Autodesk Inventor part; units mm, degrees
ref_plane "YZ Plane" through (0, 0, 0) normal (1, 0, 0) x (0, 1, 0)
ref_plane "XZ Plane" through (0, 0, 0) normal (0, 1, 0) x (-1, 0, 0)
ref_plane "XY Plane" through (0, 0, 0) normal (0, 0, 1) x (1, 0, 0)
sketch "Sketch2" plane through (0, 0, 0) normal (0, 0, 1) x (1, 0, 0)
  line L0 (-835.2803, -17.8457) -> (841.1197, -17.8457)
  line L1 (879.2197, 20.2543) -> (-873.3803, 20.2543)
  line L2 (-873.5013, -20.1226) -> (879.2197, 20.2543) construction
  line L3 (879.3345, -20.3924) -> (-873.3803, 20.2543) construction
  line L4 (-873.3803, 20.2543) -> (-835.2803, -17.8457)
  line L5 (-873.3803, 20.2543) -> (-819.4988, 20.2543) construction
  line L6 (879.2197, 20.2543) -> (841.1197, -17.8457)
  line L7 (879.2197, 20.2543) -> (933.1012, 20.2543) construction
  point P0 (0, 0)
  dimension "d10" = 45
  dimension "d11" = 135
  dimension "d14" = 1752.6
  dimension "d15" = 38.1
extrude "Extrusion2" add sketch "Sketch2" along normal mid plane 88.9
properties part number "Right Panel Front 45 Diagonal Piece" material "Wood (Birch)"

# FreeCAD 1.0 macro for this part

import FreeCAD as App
import Part
import Sketcher

V = App.Vector
Q = App.Units.Quantity

doc = App.newDocument("Part")
body = doc.addObject("PartDesign::Body", "Body")

# Sketch on XY plane
sketch1 = doc.addObject("Sketcher::SketchObject", "Sketch")
body.addObject(sketch1)
sketch1.AttachmentSupport = (doc.XY_Plane, [""])
sketch1.MapMode = "FlatFace"
sketch1.addGeometry([
    Part.LineSegment(V(-873, 20, 0), V(-835, -18, 0)),
    Part.LineSegment(V(-835, -18, 0), V(841, -18, 0)),
    Part.LineSegment(V(841, -18, 0), V(879, 20, 0)),
    Part.LineSegment(V(879, 20, 0), V(-873, 20, 0)),
], False)
sketch1.addConstraint([
    Sketcher.Constraint("Coincident", 0, 2, 1, 1),
    Sketcher.Constraint("Coincident", 1, 2, 2, 1),
    Sketcher.Constraint("Coincident", 2, 2, 3, 1),
    Sketcher.Constraint("Coincident", 3, 2, 0, 1),
    Sketcher.Constraint("Horizontal", 1),
    Sketcher.Constraint("Horizontal", 3),
    Sketcher.Constraint("Perpendicular", 0, 2),
    Sketcher.Constraint("Equal", 0, 2),
    Sketcher.Constraint("DistanceX", 3, 2, 3, 1, Q("69 in")),
    Sketcher.Constraint("DistanceX", 1, 2, 2, 2, Q("1.5 in")),
    Sketcher.Constraint("DistanceX", 0, 2, -1, 1, 835.2803),
    Sketcher.Constraint("DistanceY", 0, 2, -1, 1, 17.8457),
])
pad1 = doc.addObject("PartDesign::Pad", "Pad")
body.addObject(pad1)
pad1.Profile = sketch1
pad1.Length = Q("3.5 in")
pad1.Midplane = True

doc.recompute()
